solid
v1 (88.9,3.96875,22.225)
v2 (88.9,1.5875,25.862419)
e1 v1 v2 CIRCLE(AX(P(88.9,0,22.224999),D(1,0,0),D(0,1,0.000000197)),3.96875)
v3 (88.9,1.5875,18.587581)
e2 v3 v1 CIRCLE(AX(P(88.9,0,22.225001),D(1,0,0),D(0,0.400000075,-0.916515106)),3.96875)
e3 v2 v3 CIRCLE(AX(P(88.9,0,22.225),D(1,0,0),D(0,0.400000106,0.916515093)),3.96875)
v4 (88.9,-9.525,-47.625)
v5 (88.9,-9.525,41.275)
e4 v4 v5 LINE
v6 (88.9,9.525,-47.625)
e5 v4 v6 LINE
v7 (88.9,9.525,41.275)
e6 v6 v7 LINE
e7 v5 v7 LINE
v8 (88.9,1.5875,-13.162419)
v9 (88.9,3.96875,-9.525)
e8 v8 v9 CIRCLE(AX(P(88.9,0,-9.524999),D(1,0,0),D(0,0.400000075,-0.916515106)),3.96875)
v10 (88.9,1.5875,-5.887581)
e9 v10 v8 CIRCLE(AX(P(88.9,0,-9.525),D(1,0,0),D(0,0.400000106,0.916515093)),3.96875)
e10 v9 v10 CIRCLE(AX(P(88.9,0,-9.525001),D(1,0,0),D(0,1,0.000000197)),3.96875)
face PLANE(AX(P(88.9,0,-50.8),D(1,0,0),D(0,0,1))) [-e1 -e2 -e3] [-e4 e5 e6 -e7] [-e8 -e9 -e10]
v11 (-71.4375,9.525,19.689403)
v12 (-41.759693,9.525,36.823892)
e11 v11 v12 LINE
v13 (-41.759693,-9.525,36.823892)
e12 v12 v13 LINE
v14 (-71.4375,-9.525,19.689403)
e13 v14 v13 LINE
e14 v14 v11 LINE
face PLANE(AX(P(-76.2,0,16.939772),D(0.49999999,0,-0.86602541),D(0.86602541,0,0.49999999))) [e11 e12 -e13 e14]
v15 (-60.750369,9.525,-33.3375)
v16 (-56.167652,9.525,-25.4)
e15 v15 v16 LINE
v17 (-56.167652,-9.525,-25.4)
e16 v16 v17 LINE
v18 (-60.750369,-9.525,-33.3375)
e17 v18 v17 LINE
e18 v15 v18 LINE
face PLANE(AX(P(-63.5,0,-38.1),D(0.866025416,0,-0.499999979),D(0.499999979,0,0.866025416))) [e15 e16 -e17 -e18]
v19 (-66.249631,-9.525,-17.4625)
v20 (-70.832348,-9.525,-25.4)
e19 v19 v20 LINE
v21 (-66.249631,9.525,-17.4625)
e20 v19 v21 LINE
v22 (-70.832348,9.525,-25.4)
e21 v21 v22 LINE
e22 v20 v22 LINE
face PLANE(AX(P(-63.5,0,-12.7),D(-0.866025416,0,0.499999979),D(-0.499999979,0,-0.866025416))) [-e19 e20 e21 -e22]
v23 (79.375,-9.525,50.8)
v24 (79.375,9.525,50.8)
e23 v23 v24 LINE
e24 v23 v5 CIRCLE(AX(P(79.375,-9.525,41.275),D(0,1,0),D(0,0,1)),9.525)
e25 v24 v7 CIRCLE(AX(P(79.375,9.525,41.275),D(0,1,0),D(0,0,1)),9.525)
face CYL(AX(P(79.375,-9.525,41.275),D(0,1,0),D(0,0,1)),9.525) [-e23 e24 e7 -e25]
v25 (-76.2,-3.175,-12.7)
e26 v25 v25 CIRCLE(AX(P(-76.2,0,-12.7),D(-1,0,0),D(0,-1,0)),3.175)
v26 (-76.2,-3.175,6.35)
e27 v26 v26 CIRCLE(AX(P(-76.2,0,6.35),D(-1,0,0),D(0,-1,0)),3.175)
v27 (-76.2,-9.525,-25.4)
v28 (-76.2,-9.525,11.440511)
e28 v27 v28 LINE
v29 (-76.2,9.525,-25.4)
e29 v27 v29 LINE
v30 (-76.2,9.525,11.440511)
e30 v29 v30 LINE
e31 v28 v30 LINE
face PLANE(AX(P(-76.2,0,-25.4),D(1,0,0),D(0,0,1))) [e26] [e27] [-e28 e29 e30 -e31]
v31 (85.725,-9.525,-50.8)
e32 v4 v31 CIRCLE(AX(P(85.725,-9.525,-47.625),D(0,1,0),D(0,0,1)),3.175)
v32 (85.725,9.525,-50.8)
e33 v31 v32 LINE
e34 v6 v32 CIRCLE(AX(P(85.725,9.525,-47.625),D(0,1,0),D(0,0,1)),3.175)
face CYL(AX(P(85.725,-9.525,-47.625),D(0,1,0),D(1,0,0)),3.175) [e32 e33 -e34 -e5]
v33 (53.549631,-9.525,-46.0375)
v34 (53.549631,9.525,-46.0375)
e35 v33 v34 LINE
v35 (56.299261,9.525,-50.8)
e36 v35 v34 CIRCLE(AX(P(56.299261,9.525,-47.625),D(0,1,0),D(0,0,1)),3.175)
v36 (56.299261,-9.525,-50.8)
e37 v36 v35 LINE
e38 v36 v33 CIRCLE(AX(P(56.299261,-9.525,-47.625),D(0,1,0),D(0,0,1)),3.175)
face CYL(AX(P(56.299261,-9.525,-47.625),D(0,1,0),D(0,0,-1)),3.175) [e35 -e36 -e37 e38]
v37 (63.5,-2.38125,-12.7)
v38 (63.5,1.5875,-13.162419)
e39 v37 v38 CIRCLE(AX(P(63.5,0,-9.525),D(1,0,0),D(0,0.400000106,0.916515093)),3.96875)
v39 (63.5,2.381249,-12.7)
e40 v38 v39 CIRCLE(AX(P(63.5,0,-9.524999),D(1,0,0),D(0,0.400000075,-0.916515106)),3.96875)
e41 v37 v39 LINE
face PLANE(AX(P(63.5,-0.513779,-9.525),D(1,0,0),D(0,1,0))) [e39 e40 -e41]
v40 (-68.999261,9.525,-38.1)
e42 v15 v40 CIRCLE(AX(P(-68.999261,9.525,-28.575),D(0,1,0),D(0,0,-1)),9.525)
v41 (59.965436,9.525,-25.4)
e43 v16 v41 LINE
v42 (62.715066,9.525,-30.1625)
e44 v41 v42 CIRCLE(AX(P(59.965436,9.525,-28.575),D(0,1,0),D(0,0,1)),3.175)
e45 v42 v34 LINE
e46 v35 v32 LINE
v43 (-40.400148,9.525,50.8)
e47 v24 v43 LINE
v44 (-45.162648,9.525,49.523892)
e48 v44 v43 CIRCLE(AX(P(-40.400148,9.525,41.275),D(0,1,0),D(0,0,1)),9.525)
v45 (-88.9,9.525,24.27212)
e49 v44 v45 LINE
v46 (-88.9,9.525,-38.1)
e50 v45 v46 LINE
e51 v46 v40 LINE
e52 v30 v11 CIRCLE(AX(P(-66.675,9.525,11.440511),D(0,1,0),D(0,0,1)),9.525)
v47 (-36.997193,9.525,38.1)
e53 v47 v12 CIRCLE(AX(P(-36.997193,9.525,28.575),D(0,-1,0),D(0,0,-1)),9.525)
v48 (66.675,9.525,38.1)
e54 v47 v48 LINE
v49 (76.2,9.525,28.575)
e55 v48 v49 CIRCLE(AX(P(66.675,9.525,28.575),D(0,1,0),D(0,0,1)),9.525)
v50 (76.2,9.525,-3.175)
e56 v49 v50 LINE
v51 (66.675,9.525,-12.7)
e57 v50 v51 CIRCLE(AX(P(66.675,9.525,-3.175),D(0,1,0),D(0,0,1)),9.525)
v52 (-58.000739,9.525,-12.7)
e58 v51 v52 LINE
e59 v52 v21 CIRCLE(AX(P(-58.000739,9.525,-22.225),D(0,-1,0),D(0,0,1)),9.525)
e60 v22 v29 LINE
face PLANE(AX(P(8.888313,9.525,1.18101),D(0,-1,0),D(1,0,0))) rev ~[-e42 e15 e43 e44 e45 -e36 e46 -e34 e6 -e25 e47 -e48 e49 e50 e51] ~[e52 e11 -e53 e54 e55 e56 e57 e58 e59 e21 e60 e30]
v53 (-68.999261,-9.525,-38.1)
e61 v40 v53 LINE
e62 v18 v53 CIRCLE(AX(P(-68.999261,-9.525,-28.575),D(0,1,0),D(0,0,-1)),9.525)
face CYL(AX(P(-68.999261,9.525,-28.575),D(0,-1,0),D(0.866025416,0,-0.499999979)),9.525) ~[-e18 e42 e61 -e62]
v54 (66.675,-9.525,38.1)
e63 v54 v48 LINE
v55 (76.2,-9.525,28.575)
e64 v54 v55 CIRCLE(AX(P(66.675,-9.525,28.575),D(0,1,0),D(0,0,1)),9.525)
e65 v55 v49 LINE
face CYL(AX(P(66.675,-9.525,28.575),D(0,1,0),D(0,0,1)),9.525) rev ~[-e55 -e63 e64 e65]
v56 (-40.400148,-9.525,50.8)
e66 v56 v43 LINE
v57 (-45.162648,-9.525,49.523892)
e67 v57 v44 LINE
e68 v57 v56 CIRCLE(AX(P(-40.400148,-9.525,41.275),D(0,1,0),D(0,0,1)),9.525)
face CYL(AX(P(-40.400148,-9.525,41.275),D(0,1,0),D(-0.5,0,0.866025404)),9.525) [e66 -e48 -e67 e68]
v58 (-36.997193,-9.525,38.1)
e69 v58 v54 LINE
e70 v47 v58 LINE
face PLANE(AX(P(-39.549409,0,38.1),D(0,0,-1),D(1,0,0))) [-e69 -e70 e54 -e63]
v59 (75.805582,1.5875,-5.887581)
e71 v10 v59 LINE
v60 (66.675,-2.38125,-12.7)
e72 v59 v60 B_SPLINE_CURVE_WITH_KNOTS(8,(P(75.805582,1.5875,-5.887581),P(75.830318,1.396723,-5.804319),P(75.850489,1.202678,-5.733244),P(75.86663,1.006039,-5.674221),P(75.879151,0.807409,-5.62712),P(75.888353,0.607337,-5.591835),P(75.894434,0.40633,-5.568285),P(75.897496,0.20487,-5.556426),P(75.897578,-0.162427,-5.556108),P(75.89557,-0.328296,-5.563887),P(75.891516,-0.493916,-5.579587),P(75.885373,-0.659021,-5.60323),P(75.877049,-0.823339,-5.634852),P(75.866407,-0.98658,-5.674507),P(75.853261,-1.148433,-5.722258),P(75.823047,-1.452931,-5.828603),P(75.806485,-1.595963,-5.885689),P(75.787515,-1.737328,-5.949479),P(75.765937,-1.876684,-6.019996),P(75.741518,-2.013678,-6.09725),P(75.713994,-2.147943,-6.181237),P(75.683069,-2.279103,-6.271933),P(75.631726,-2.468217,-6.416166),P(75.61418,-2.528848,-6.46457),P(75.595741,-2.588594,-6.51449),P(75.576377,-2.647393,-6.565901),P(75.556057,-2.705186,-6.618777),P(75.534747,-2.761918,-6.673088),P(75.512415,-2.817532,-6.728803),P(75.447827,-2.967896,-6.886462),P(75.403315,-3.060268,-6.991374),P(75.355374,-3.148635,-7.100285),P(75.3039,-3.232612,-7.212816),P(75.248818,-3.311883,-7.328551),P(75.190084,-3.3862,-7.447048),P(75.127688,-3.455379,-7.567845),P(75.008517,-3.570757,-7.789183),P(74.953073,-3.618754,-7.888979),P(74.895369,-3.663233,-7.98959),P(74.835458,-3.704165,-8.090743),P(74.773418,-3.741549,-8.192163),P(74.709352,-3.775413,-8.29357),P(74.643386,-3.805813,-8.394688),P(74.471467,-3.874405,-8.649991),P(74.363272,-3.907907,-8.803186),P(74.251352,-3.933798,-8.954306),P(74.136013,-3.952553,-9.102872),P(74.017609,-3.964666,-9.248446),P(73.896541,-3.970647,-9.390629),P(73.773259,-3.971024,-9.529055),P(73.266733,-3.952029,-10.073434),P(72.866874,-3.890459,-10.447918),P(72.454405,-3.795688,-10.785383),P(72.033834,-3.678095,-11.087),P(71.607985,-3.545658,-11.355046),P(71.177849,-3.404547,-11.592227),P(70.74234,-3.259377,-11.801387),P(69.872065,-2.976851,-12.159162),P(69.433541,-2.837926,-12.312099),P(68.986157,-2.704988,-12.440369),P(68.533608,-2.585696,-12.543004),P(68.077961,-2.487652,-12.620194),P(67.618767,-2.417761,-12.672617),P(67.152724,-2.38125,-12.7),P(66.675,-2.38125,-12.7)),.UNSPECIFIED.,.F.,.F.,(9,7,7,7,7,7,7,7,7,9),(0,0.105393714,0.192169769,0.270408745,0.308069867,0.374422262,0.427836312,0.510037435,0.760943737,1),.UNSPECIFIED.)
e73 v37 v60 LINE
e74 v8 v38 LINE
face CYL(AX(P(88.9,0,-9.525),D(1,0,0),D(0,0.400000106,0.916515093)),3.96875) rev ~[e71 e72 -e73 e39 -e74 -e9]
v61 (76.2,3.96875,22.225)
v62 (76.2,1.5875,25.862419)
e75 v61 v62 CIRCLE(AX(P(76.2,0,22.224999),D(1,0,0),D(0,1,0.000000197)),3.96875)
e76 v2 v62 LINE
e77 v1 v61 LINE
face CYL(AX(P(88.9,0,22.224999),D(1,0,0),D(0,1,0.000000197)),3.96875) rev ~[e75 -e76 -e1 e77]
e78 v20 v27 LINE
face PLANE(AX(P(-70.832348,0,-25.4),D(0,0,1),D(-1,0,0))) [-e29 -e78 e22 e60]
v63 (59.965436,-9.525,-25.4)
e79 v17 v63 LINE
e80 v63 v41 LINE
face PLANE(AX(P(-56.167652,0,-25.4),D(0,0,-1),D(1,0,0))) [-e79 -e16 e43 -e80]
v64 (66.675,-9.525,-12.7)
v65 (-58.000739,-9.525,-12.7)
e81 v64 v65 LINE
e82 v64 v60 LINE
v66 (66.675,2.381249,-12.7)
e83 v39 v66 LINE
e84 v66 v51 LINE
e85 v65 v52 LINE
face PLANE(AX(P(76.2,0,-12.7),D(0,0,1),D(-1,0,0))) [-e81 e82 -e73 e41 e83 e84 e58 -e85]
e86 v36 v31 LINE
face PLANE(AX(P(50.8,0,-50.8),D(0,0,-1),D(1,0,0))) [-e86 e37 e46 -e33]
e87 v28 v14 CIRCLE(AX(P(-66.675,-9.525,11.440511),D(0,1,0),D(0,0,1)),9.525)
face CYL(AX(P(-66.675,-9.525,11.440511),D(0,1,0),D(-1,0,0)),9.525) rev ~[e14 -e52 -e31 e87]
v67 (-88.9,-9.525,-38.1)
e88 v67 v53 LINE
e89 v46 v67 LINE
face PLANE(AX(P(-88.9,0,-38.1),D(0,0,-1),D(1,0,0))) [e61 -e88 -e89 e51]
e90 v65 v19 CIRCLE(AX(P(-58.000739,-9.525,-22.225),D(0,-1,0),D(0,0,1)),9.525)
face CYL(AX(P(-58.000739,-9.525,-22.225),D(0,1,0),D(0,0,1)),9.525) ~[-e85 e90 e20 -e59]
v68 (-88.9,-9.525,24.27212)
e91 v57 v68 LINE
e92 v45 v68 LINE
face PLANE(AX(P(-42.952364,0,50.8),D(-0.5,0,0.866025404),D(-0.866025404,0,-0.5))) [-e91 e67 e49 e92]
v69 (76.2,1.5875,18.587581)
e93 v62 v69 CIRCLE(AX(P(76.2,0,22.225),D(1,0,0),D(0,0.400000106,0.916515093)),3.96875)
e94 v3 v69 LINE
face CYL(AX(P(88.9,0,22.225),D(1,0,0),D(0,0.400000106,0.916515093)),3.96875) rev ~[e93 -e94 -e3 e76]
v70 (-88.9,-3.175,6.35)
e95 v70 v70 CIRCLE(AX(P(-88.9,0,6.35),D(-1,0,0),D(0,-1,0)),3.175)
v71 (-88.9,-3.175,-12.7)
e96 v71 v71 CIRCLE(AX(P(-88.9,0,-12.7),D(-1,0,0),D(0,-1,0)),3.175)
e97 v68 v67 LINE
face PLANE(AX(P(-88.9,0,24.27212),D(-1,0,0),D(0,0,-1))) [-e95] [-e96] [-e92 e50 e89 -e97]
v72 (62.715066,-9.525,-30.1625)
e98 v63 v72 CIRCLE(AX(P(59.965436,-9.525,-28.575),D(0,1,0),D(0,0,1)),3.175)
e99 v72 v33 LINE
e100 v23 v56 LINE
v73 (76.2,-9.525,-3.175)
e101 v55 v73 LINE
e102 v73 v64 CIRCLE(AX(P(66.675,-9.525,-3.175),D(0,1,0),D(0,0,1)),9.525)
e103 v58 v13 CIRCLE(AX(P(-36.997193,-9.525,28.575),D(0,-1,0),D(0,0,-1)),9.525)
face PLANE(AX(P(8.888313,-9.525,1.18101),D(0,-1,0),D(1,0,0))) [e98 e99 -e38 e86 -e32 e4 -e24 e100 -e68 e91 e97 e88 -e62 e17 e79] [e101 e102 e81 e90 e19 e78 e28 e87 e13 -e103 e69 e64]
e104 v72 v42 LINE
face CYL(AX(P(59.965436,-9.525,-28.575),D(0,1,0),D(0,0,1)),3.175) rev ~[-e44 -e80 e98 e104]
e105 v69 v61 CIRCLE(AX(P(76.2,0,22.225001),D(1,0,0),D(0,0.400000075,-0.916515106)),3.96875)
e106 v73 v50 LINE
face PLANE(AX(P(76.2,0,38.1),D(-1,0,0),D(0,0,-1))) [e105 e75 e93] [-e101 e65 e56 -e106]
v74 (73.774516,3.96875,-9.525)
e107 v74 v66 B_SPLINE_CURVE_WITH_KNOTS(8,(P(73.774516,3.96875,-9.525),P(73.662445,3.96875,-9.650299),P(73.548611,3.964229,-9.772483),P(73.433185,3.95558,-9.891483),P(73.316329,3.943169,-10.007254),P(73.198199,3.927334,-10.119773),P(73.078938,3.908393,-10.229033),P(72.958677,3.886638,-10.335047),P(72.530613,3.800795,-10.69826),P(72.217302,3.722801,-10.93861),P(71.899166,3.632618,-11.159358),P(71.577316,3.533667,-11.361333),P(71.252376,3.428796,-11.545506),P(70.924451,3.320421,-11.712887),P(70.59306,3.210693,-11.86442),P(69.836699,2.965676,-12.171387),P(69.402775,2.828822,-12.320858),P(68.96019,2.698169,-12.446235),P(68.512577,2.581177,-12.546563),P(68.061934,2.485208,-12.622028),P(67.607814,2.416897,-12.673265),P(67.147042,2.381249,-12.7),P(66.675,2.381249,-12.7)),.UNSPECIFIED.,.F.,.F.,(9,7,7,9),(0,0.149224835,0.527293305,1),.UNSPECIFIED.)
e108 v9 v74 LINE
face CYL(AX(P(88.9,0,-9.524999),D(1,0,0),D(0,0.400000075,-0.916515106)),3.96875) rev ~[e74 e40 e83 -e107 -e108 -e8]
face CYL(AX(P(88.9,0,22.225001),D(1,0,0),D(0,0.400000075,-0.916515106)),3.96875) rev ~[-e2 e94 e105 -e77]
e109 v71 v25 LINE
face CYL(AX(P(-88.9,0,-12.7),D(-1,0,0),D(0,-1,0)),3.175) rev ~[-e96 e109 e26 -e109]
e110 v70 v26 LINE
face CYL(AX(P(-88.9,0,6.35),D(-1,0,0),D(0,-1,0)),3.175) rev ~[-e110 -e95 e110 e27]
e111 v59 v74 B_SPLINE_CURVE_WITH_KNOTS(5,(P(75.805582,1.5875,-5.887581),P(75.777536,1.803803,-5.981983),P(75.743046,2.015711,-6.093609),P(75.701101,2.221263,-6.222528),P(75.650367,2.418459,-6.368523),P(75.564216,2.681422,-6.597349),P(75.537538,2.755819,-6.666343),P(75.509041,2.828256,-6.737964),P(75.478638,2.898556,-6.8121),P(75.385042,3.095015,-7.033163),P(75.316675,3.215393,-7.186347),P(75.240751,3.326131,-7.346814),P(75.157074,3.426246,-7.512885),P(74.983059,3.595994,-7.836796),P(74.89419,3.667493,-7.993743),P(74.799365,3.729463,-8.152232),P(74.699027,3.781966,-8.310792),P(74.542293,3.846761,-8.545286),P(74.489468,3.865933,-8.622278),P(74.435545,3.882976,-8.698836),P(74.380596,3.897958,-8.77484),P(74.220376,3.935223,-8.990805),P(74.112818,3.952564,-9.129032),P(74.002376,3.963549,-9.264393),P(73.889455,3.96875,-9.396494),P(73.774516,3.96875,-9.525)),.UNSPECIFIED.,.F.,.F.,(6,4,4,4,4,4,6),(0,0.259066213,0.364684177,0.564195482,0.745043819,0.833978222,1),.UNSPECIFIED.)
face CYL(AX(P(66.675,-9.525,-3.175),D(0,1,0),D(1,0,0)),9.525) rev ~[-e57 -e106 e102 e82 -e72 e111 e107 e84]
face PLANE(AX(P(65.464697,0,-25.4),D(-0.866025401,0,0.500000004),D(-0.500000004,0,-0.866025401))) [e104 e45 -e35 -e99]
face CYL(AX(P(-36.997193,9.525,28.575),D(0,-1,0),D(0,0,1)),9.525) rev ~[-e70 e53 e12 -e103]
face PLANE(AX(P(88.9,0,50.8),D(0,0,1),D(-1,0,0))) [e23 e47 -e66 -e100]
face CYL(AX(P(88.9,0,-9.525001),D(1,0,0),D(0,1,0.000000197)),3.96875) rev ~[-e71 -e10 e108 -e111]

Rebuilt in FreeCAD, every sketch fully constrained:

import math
import FreeCAD as App
import Part
import Sketcher
Q = App.Units.Quantity


def edges_at(feature, points):
    """Names of the edges that pass closest to the given points."""
    edges = feature.Shape.Edges
    near = lambda p: min(range(len(edges)), key=lambda i: edges[i].distToShape(Part.Vertex(*p))[0])
    return sorted({f"Edge{near(p) + 1}" for p in points})

doc = App.newDocument("Part")
params = doc.addObject("Spreadsheet::Sheet", "Params")
for row, (alias, value) in enumerate([
    ("sketch1_width", "1 in"),
    ("sketch1_height", "4 in"),
    ("sketch1_height2", "2 in"),
    ("sketch1_width2", "1.5 in"),
    ("sketch1_width3", "5.5 in"),
    ("pad1_length", "0.375 in"),
    ("pad1_length2", "0.375 in"),
    ("fillet_radius", "0.375 in"),
    ("fillet2_radius", "0.125 in"),
    ("sketch2_diameter", "0.25 in"),
    ("pocket1_length", "0.5 in"),
    ("sketch3_radius", "0.15625 in"),
    ("pocket2_length", "1 in"),
], start=1):
    params.set(f"A{row}", alias)
    params.set(f"B{row}", "=" + value)
    params.setAlias(f"B{row}", alias)

body = doc.addObject("PartDesign::Body", "Body")

# Sketch on XZ plane
sketch1 = body.newObject("Sketcher::SketchObject", "Sketch")
sketch1.AttachmentSupport = (doc.getObject("XZ_Plane"), [""])
sketch1.MapMode = "FlatFace"
sketch1.addGeometry([
    Part.LineSegment(App.Vector(-43, 51, 0), App.Vector(-89, 24, 0)),  # 0
    Part.LineSegment(App.Vector(-89, 24, 0), App.Vector(-89, -38, 0)),  # 1
    Part.LineSegment(App.Vector(-89, -38, 0), App.Vector(-64, -38, 0)),  # 2
    Part.LineSegment(App.Vector(-64, -38, 0), App.Vector(-56, -25, 0)),  # 3
    Part.LineSegment(App.Vector(-56, -25, 0), App.Vector(65, -25, 0)),  # 4
    Part.LineSegment(App.Vector(65, -25, 0), App.Vector(51, -51, 0)),  # 5
    Part.LineSegment(App.Vector(51, -51, 0), App.Vector(89, -51, 0)),  # 6
    Part.LineSegment(App.Vector(89, -51, 0), App.Vector(89, 51, 0)),  # 7
    Part.LineSegment(App.Vector(89, 51, 0), App.Vector(-43, 51, 0)),  # 8
    Part.LineSegment(App.Vector(-76, 17, 0), App.Vector(-40, 38, 0)),  # 9
    Part.LineSegment(App.Vector(-40, 38, 0), App.Vector(76, 38, 0)),  # 10
    Part.LineSegment(App.Vector(76, 38, 0), App.Vector(76, -13, 0)),  # 11
    Part.LineSegment(App.Vector(76, -13, 0), App.Vector(-64, -13, 0)),  # 12
    Part.LineSegment(App.Vector(-64, -13, 0), App.Vector(-71, -25, 0)),  # 13
    Part.LineSegment(App.Vector(-71, -25, 0), App.Vector(-76, -25, 0)),  # 14
    Part.LineSegment(App.Vector(-76, -25, 0), App.Vector(-76, 17, 0)),  # 15
], False)
sketch1.addConstraint([
    Sketcher.Constraint("Coincident", 0, 2, 1, 1),
    Sketcher.Constraint("Coincident", 1, 2, 2, 1),
    Sketcher.Constraint("Coincident", 2, 2, 3, 1),
    Sketcher.Constraint("Coincident", 3, 2, 4, 1),
    Sketcher.Constraint("Coincident", 4, 2, 5, 1),
    Sketcher.Constraint("Coincident", 5, 2, 6, 1),
    Sketcher.Constraint("Coincident", 6, 2, 7, 1),
    Sketcher.Constraint("Coincident", 7, 2, 8, 1),
    Sketcher.Constraint("Coincident", 8, 2, 0, 1),
    Sketcher.Constraint("Coincident", 9, 2, 10, 1),
    Sketcher.Constraint("Coincident", 10, 2, 11, 1),
    Sketcher.Constraint("Coincident", 11, 2, 12, 1),
    Sketcher.Constraint("Coincident", 12, 2, 13, 1),
    Sketcher.Constraint("Coincident", 13, 2, 14, 1),
    Sketcher.Constraint("Coincident", 14, 2, 15, 1),
    Sketcher.Constraint("Coincident", 15, 2, 9, 1),
    Sketcher.Constraint("Vertical", 1),
    Sketcher.Constraint("Horizontal", 2),
    Sketcher.Constraint("Horizontal", 4),
    Sketcher.Constraint("Horizontal", 6),
    Sketcher.Constraint("Vertical", 7),
    Sketcher.Constraint("Horizontal", 8),
    Sketcher.Constraint("Horizontal", 10),
    Sketcher.Constraint("Vertical", 11),
    Sketcher.Constraint("Horizontal", 12),
    Sketcher.Constraint("Horizontal", 14),
    Sketcher.Constraint("Vertical", 15),
    Sketcher.Constraint("Parallel", 3, 5),
    Sketcher.Constraint("Parallel", 0, 9),
    Sketcher.Constraint("Parallel", 5, 13),
    Sketcher.Constraint("Horizontal", 4, 2, 13, 2),
    Sketcher.Constraint("Vertical", 2, 2, 12, 2),
    Sketcher.Constraint("Equal", 3, 13),
    Sketcher.Constraint("DistanceX", 2, 1, 2, 2, Q("1 in")),
    Sketcher.Constraint("DistanceY", 7, 1, 7, 2, Q("4 in")),
    Sketcher.Constraint("DistanceY", 11, 2, 11, 1, Q("2 in")),
    Sketcher.Constraint("DistanceX", 6, 1, 6, 2, Q("1.5 in")),
    Sketcher.Constraint("DistanceX", 12, 2, 12, 1, Q("5.5 in")),
    Sketcher.Constraint("DistanceY", 3, 2, -1, 1, Q("1 in")),
    Sketcher.Constraint("DistanceX", -1, 1, 5, 2, Q("2 in")),
    Sketcher.Constraint("DistanceY", 5, 2, -1, 1, Q("2 in")),
    Sketcher.Constraint("DistanceX", -1, 1, 10, 2, Q("3 in")),
    Sketcher.Constraint("DistanceX", 14, 2, -1, 1, Q("3 in")),
    Sketcher.Constraint("Angle", 0, Q("-150 deg")),
    Sketcher.Constraint("Angle", 3, Q("60.000001 deg")),
    Sketcher.Constraint("DistanceY", 2, 2, 9, 2, Q("3 in")),
    Sketcher.Constraint("DistanceX", 10, 1, 10, 2, Q("115.749409 mm")),
    Sketcher.Constraint("DistanceY", 1, 2, 1, 1, Q("62.37212 mm")),
])
sketch1.setExpression("Constraints[33]", "Params.sketch1_width")
sketch1.setExpression("Constraints[34]", "Params.sketch1_height")
sketch1.setExpression("Constraints[35]", "Params.sketch1_height2")
sketch1.setExpression("Constraints[36]", "Params.sketch1_width2")
sketch1.setExpression("Constraints[37]", "Params.sketch1_width3")
pad1 = body.newObject("PartDesign::Pad", "Pad")
pad1.Profile = sketch1
pad1.Type = "TwoLengths"
pad1.setExpression("Length", "Params.pad1_length")
pad1.setExpression("Length2", "Params.pad1_length2")
doc.recompute()

fillet = body.newObject("PartDesign::Fillet", "Fillet")
fillet.Base = (pad1, edges_at(pad1, [
    (88.9, 0, 50.8),
    (-42.952, 0, 50.8),
    (-63.5, 0, -38.1),
    (-76.2, 0, 16.94),
    (-39.549, 0, 38.1),
    (76.2, 0, 38.1),
    (-63.5, 0, -12.7),
    (76.2, 0, -12.7),
]))
fillet.setExpression("Radius", "Params.fillet_radius")
doc.recompute()

fillet2 = body.newObject("PartDesign::Fillet", "Fillet001")
fillet2.Base = (fillet, edges_at(fillet, [(50.8, 0, -50.8), (65.465, 0, -25.4), (88.9, 0, -50.8)]))
fillet2.setExpression("Radius", "Params.fillet2_radius")

# Sketch on YZ plane
sketch2 = body.newObject("Sketcher::SketchObject", "Sketch001")
sketch2.AttachmentSupport = (doc.getObject("YZ_Plane"), [""])
sketch2.MapMode = "FlatFace"
sketch2.AttachmentOffset = App.Placement(App.Vector(0, 0, -3.5 * 25.4), App.Rotation())
sketch2.addGeometry([
    Part.Circle(App.Vector(0, -12.7, 0), App.Vector(0, 0, 1), 3.2),
    Part.Circle(App.Vector(0, 6.3, 0), App.Vector(0, 0, 1), 3.2),
], False)
sketch2.addConstraint([
    Sketcher.Constraint("Equal", 0, 1),
    Sketcher.Constraint("PointOnObject", 0, 3, -2),
    Sketcher.Constraint("PointOnObject", 1, 3, -2),
    Sketcher.Constraint("Diameter", 0, Q("0.25 in")),
    Sketcher.Constraint("DistanceY", 0, 3, -1, 1, Q("0.5 in")),
    Sketcher.Constraint("DistanceY", -1, 1, 1, 3, Q("0.25 in")),
])
sketch2.setExpression("Constraints[3]", "Params.sketch2_diameter")
pocket1 = body.newObject("PartDesign::Pocket", "Pocket")
pocket1.Profile = sketch2
pocket1.setExpression("Length", "Params.pocket1_length")
pocket1.Reversed = True

# Sketch on YZ plane
sketch3 = body.newObject("Sketcher::SketchObject", "Sketch002")
sketch3.AttachmentSupport = (doc.getObject("YZ_Plane"), [""])
sketch3.MapMode = "FlatFace"
sketch3.AttachmentOffset = App.Placement(App.Vector(0, 0, 3.5 * 25.4), App.Rotation())
sketch3.addGeometry([
    Part.ArcOfCircle(Part.Circle(App.Vector(0, -9.5, 0), App.Vector(0, 0, 1), 4), math.radians(66), math.radians(294)),  # 0
    Part.ArcOfCircle(Part.Circle(App.Vector(0, -9.5, 0), App.Vector(0, 0, 1), 4), math.radians(-66), math.radians(0)),  # 1
    Part.ArcOfCircle(Part.Circle(App.Vector(0, -9.5, 0), App.Vector(0, 0, 1), 4), math.radians(0), math.radians(66)),  # 2
    Part.ArcOfCircle(Part.Circle(App.Vector(0, 22.2, 0), App.Vector(0, 0, 1), 4), math.radians(-66), math.radians(0)),  # 3
    Part.ArcOfCircle(Part.Circle(App.Vector(0, 22.2, 0), App.Vector(0, 0, 1), 4), math.radians(0), math.radians(66)),  # 4
    Part.ArcOfCircle(Part.Circle(App.Vector(0, 22.2, 0), App.Vector(0, 0, 1), 4), math.radians(66), math.radians(294)),  # 5
], False)
sketch3.addConstraint([
    Sketcher.Constraint("Tangent", 0, 2, 1, 1),
    Sketcher.Constraint("Tangent", 1, 2, 2, 1),
    Sketcher.Constraint("Tangent", 2, 2, 0, 1),
    Sketcher.Constraint("Tangent", 3, 2, 4, 1),
    Sketcher.Constraint("Tangent", 4, 2, 5, 1),
    Sketcher.Constraint("Tangent", 5, 2, 3, 1),
    Sketcher.Constraint("Equal", 2, 3),
    Sketcher.Constraint("PointOnObject", 0, 3, -2),
    Sketcher.Constraint("PointOnObject", 3, 3, -2),
    Sketcher.Constraint("Horizontal", 2, 3, 1, 2),
    Sketcher.Constraint("Horizontal", 5, 3, 3, 2),
    Sketcher.Constraint("Vertical", 0, 2, 2, 2),
    Sketcher.Constraint("Vertical", 2, 2, 4, 2),
    Sketcher.Constraint("Vertical", 4, 2, 5, 2),
    Sketcher.Constraint("Radius", 0, Q("0.15625 in")),
    Sketcher.Constraint("DistanceY", 1, 3, 3, 3, Q("1.25 in")),
    Sketcher.Constraint("DistanceY", 0, 3, -1, 1, Q("0.375 in")),
    Sketcher.Constraint("DistanceX", -1, 1, 0, 2, Q("0.0625 in")),
])
sketch3.setExpression("Constraints[14]", "Params.sketch3_radius")
pocket2 = body.newObject("PartDesign::Pocket", "Pocket001")
pocket2.Profile = sketch3
pocket2.setExpression("Length", "Params.pocket2_length")

doc.recompute()
